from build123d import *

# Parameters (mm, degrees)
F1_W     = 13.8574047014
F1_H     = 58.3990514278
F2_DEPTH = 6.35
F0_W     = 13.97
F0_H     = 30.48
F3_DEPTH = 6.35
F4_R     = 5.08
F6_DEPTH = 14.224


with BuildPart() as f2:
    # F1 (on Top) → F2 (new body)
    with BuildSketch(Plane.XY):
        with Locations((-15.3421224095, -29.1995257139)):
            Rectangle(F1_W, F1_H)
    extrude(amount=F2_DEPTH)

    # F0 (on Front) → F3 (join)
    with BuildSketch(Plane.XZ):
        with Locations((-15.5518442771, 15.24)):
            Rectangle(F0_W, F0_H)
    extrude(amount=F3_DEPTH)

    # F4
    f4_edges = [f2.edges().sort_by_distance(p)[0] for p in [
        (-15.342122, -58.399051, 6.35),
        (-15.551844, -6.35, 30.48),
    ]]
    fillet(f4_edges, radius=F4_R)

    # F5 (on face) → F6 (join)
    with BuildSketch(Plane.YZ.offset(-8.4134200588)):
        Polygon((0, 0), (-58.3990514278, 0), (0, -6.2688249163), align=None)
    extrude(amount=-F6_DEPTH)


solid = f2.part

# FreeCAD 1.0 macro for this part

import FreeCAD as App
import Part
import Sketcher
from FreeCAD import Vector
Q = App.Units.Quantity


def edges_at(feature, points):
    """Names of the edges that pass closest to the given points."""
    edges = feature.Shape.Edges
    near = lambda p: min(range(len(edges)), key=lambda i: edges[i].distToShape(Part.Vertex(*p))[0])
    return sorted({f"Edge{near(p) + 1}" for p in points})


def add_polygon(sketch, points):
    """Adds a closed chain of lines whose ends are joined by coincident constraints."""
    first, n = sketch.GeometryCount, len(points)
    for a, b in zip(points, points[1:] + points[:1]):
        sketch.addGeometry(Part.LineSegment(App.Vector(*a, 0), App.Vector(*b, 0)), False)
    for i in range(n):
        sketch.addConstraint(Sketcher.Constraint("Coincident", first + i, 2, first + (i + 1) % n, 1))

doc = App.newDocument("Part")
body = doc.addObject("PartDesign::Body", "Body")

sketch1 = body.newObject("Sketcher::SketchObject", "Sketch")
sketch1.AttachmentSupport = (doc.getObject("XY_Plane"), [""])
sketch1.MapMode = "FlatFace"
add_polygon(sketch1, [(-22, 0), (-22, -58), (-8, -58), (-8, 0)])
sketch1.addConstraint([
    Sketcher.Constraint("Vertical", 0),
    Sketcher.Constraint("Horizontal", 1),
    Sketcher.Constraint("Vertical", 2),
    Sketcher.Constraint("Horizontal", 3),
    Sketcher.Constraint("PointOnObject", 2, 2, -1),
    Sketcher.Constraint("DistanceY", 0, 2, 0, 1, 58.399051),
    Sketcher.Constraint("DistanceX", 1, 1, 1, 2, 13.857405),
    Sketcher.Constraint("DistanceX", 1, 2, -1, 1, 8.41342),
])
pad1 = body.newObject("PartDesign::Pad", "Pad")
pad1.Profile = sketch1
pad1.Length = Q("0.25 in")

sketch2 = body.newObject("Sketcher::SketchObject", "Sketch001")
sketch2.AttachmentSupport = (doc.getObject("XZ_Plane"), [""])
sketch2.MapMode = "FlatFace"
add_polygon(sketch2, [(-23, 30), (-23, 0), (-9, 0), (-9, 30)])
sketch2.addConstraint([
    Sketcher.Constraint("Vertical", 0),
    Sketcher.Constraint("Horizontal", 1),
    Sketcher.Constraint("Vertical", 2),
    Sketcher.Constraint("Horizontal", 3),
    Sketcher.Constraint("PointOnObject", 0, 2, -1),
    Sketcher.Constraint("DistanceY", 0, 2, 0, 1, Q("1.2 in")),
    Sketcher.Constraint("DistanceX", 1, 1, 1, 2, Q("0.55 in")),
    Sketcher.Constraint("DistanceX", 0, 2, -1, 1, 22.536844),
])
pad2 = body.newObject("PartDesign::Pad", "Pad001")
pad2.Profile = sketch2
pad2.Length = Q("0.25 in")
doc.recompute()

fillet = body.newObject("PartDesign::Fillet", "Fillet")
fillet.Base = (pad2, edges_at(pad2, [(-15.342, -58.399, 6.35), (-15.552, -6.35, 30.48)]))
fillet.Radius = Q("0.2 in")

sketch3 = body.newObject("Sketcher::SketchObject", "Sketch002")
sketch3.AttachmentSupport = (doc.getObject("YZ_Plane"), [""])
sketch3.MapMode = "FlatFace"
sketch3.AttachmentOffset = App.Placement(Vector(0, 0, -8.41342), App.Rotation())
add_polygon(sketch3, [(0, 0), (-58, 0), (0, -6)])
sketch3.addConstraint([
    Sketcher.Constraint("Horizontal", 0),
    Sketcher.Constraint("Vertical", 2),
    Sketcher.Constraint("Coincident", 2, 2, -1, 1),
    Sketcher.Constraint("DistanceX", 0, 2, 0, 1, 58.399051),
    Sketcher.Constraint("Distance", 1, 58.73455),
])
pad3 = body.newObject("PartDesign::Pad", "Pad002")
pad3.Profile = sketch3
pad3.Length = Q("0.56 in")
pad3.Reversed = True

doc.recompute()
